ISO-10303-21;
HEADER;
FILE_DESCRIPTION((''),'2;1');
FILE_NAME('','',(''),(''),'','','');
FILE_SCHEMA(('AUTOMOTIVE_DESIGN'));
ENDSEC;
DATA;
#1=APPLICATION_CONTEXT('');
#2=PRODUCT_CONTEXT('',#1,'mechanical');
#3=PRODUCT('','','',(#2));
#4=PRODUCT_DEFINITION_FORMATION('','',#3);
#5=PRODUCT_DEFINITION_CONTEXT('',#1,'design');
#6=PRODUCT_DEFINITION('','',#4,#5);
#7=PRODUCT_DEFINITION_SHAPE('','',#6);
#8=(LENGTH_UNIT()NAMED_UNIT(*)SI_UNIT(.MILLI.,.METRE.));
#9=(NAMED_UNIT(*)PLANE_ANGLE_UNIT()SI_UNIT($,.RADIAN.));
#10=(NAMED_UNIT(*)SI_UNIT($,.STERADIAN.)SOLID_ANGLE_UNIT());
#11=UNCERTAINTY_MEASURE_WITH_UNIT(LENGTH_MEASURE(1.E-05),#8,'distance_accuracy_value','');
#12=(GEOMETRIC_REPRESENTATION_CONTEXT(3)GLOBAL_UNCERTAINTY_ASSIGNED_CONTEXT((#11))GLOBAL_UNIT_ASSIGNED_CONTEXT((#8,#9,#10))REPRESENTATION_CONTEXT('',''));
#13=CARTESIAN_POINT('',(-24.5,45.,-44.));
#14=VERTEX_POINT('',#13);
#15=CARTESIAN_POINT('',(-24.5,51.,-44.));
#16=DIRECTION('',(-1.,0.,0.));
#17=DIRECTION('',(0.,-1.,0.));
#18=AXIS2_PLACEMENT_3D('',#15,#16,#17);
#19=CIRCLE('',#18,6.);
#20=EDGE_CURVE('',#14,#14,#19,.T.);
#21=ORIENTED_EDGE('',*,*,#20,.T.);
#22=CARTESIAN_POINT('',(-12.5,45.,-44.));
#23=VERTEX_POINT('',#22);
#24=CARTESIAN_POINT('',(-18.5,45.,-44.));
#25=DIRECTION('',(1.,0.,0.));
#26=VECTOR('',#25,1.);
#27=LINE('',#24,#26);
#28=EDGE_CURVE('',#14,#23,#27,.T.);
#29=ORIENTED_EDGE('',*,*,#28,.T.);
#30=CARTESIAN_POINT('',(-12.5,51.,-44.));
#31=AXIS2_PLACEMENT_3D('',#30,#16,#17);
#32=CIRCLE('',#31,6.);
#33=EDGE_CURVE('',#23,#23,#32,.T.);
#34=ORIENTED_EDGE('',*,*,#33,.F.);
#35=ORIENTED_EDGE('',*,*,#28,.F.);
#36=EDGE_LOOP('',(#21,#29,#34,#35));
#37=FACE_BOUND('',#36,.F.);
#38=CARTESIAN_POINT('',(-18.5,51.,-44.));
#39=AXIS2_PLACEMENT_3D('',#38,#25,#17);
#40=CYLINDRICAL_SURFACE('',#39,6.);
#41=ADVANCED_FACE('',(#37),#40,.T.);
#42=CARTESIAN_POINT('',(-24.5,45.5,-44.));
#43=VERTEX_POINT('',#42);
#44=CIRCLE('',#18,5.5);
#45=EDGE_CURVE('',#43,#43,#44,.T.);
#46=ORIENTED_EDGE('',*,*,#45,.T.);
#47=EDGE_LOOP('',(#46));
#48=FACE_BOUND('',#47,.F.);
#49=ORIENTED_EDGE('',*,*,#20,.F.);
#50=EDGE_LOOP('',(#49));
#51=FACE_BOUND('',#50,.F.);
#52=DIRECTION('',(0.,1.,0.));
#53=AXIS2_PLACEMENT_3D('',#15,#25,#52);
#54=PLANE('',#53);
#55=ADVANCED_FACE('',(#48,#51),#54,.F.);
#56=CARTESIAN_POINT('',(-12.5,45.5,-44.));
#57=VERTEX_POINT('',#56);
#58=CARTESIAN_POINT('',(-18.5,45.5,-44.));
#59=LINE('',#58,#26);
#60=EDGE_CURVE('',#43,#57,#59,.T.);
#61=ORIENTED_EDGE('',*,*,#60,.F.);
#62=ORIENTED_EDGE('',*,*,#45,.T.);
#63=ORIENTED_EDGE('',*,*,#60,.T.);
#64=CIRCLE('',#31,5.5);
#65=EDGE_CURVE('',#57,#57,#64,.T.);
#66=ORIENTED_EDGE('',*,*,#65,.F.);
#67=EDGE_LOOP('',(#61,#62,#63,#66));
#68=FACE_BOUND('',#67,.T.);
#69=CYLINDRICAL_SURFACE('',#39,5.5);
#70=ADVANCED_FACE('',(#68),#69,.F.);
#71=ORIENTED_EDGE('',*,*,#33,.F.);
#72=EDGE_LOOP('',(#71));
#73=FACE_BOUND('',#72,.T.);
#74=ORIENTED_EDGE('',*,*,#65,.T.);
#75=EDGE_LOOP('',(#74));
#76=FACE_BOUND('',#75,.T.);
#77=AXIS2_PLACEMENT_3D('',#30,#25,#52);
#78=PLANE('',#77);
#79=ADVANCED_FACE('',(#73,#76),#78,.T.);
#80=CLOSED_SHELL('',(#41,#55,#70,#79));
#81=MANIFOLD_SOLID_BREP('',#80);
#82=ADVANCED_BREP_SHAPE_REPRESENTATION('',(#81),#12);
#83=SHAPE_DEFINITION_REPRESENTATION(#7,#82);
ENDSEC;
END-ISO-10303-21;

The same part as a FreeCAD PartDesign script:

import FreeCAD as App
import Part
import Sketcher
from FreeCAD import Vector


def add_polygon(sketch, points):
    """Adds a closed chain of lines whose ends are joined by coincident constraints."""
    first, n = sketch.GeometryCount, len(points)
    for a, b in zip(points, points[1:] + points[:1]):
        sketch.addGeometry(Part.LineSegment(App.Vector(*a, 0), App.Vector(*b, 0)), False)
    for i in range(n):
        sketch.addConstraint(Sketcher.Constraint("Coincident", first + i, 2, first + (i + 1) % n, 1))

doc = App.newDocument("Part")
body = doc.addObject("PartDesign::Body", "Body")

sketch1 = body.newObject("Sketcher::SketchObject", "Sketch")
sketch1.AttachmentSupport = (doc.getObject("XY_Plane"), [""])
sketch1.MapMode = "FlatFace"
add_polygon(sketch1, [(-24.5, 6), (-24.5, 5.5), (-12.5, 5.5), (-12.5, 6)])
sketch1.addConstraint(Sketcher.Constraint("Vertical", 0))
sketch1.addConstraint(Sketcher.Constraint("Horizontal", 1))
sketch1.addConstraint(Sketcher.Constraint("Vertical", 2))
sketch1.addConstraint(Sketcher.Constraint("Horizontal", 3))
sketch1.addConstraint(Sketcher.Constraint("DistanceX", 1, 1, 1, 2, 12.0))
sketch1.addConstraint(Sketcher.Constraint("DistanceY", 0, 2, 0, 1, 0.5))
sketch1.addConstraint(Sketcher.Constraint("DistanceY", -1, 1, 2, 2, 6.0))
sketch1.addConstraint(Sketcher.Constraint("DistanceX", 0, 2, -1, 1, 24.5))
revolution = body.newObject("PartDesign::Revolution", "Revolution")
revolution.Profile = sketch1
revolution.ReferenceAxis = (sketch1, ["H_Axis"])
revolution.Angle = 360
body2 = doc.addObject("PartDesign::Body", "Body001")
doc.recompute()

body.Placement = App.Placement(Vector(0, -51, -44), App.Rotation(Vector(0, 0, 1), 0))
boolean = body2.newObject("PartDesign::Boolean", "Boolean")
boolean.Type = "Fuse"
boolean.addObjects([body])
body3 = doc.addObject("PartDesign::Body", "Body002")
doc.recompute()

mirroring = doc.addObject("Part::Mirroring", "Mirroring")
mirroring.Source = body2
mirroring.Base = Vector(0, 0, 0)
mirroring.Normal = Vector(1, 0, 0)
body3.BaseFeature = mirroring
doc.recompute()
body4 = doc.addObject("PartDesign::Body", "Body003")
doc.recompute()

mirroring2 = doc.addObject("Part::Mirroring", "Mirroring001")
mirroring2.Source = body3
mirroring2.Base = Vector(0, 0, 0)
mirroring2.Normal = Vector(0, 1, 0)
body4.BaseFeature = mirroring2
doc.recompute()
body5 = doc.addObject("PartDesign::Body", "Body004")
doc.recompute()

mirroring3 = doc.addObject("Part::Mirroring", "Mirroring002")
mirroring3.Source = body4
mirroring3.Base = Vector(0, 0, 0)
mirroring3.Normal = Vector(1, 0, 0)
body5.BaseFeature = mirroring3
doc.recompute()
body2.Visibility = False
body3.Visibility = False
body4.Visibility = False
mirroring.Visibility = False
mirroring2.Visibility = False
mirroring3.Visibility = False

doc.recompute()
